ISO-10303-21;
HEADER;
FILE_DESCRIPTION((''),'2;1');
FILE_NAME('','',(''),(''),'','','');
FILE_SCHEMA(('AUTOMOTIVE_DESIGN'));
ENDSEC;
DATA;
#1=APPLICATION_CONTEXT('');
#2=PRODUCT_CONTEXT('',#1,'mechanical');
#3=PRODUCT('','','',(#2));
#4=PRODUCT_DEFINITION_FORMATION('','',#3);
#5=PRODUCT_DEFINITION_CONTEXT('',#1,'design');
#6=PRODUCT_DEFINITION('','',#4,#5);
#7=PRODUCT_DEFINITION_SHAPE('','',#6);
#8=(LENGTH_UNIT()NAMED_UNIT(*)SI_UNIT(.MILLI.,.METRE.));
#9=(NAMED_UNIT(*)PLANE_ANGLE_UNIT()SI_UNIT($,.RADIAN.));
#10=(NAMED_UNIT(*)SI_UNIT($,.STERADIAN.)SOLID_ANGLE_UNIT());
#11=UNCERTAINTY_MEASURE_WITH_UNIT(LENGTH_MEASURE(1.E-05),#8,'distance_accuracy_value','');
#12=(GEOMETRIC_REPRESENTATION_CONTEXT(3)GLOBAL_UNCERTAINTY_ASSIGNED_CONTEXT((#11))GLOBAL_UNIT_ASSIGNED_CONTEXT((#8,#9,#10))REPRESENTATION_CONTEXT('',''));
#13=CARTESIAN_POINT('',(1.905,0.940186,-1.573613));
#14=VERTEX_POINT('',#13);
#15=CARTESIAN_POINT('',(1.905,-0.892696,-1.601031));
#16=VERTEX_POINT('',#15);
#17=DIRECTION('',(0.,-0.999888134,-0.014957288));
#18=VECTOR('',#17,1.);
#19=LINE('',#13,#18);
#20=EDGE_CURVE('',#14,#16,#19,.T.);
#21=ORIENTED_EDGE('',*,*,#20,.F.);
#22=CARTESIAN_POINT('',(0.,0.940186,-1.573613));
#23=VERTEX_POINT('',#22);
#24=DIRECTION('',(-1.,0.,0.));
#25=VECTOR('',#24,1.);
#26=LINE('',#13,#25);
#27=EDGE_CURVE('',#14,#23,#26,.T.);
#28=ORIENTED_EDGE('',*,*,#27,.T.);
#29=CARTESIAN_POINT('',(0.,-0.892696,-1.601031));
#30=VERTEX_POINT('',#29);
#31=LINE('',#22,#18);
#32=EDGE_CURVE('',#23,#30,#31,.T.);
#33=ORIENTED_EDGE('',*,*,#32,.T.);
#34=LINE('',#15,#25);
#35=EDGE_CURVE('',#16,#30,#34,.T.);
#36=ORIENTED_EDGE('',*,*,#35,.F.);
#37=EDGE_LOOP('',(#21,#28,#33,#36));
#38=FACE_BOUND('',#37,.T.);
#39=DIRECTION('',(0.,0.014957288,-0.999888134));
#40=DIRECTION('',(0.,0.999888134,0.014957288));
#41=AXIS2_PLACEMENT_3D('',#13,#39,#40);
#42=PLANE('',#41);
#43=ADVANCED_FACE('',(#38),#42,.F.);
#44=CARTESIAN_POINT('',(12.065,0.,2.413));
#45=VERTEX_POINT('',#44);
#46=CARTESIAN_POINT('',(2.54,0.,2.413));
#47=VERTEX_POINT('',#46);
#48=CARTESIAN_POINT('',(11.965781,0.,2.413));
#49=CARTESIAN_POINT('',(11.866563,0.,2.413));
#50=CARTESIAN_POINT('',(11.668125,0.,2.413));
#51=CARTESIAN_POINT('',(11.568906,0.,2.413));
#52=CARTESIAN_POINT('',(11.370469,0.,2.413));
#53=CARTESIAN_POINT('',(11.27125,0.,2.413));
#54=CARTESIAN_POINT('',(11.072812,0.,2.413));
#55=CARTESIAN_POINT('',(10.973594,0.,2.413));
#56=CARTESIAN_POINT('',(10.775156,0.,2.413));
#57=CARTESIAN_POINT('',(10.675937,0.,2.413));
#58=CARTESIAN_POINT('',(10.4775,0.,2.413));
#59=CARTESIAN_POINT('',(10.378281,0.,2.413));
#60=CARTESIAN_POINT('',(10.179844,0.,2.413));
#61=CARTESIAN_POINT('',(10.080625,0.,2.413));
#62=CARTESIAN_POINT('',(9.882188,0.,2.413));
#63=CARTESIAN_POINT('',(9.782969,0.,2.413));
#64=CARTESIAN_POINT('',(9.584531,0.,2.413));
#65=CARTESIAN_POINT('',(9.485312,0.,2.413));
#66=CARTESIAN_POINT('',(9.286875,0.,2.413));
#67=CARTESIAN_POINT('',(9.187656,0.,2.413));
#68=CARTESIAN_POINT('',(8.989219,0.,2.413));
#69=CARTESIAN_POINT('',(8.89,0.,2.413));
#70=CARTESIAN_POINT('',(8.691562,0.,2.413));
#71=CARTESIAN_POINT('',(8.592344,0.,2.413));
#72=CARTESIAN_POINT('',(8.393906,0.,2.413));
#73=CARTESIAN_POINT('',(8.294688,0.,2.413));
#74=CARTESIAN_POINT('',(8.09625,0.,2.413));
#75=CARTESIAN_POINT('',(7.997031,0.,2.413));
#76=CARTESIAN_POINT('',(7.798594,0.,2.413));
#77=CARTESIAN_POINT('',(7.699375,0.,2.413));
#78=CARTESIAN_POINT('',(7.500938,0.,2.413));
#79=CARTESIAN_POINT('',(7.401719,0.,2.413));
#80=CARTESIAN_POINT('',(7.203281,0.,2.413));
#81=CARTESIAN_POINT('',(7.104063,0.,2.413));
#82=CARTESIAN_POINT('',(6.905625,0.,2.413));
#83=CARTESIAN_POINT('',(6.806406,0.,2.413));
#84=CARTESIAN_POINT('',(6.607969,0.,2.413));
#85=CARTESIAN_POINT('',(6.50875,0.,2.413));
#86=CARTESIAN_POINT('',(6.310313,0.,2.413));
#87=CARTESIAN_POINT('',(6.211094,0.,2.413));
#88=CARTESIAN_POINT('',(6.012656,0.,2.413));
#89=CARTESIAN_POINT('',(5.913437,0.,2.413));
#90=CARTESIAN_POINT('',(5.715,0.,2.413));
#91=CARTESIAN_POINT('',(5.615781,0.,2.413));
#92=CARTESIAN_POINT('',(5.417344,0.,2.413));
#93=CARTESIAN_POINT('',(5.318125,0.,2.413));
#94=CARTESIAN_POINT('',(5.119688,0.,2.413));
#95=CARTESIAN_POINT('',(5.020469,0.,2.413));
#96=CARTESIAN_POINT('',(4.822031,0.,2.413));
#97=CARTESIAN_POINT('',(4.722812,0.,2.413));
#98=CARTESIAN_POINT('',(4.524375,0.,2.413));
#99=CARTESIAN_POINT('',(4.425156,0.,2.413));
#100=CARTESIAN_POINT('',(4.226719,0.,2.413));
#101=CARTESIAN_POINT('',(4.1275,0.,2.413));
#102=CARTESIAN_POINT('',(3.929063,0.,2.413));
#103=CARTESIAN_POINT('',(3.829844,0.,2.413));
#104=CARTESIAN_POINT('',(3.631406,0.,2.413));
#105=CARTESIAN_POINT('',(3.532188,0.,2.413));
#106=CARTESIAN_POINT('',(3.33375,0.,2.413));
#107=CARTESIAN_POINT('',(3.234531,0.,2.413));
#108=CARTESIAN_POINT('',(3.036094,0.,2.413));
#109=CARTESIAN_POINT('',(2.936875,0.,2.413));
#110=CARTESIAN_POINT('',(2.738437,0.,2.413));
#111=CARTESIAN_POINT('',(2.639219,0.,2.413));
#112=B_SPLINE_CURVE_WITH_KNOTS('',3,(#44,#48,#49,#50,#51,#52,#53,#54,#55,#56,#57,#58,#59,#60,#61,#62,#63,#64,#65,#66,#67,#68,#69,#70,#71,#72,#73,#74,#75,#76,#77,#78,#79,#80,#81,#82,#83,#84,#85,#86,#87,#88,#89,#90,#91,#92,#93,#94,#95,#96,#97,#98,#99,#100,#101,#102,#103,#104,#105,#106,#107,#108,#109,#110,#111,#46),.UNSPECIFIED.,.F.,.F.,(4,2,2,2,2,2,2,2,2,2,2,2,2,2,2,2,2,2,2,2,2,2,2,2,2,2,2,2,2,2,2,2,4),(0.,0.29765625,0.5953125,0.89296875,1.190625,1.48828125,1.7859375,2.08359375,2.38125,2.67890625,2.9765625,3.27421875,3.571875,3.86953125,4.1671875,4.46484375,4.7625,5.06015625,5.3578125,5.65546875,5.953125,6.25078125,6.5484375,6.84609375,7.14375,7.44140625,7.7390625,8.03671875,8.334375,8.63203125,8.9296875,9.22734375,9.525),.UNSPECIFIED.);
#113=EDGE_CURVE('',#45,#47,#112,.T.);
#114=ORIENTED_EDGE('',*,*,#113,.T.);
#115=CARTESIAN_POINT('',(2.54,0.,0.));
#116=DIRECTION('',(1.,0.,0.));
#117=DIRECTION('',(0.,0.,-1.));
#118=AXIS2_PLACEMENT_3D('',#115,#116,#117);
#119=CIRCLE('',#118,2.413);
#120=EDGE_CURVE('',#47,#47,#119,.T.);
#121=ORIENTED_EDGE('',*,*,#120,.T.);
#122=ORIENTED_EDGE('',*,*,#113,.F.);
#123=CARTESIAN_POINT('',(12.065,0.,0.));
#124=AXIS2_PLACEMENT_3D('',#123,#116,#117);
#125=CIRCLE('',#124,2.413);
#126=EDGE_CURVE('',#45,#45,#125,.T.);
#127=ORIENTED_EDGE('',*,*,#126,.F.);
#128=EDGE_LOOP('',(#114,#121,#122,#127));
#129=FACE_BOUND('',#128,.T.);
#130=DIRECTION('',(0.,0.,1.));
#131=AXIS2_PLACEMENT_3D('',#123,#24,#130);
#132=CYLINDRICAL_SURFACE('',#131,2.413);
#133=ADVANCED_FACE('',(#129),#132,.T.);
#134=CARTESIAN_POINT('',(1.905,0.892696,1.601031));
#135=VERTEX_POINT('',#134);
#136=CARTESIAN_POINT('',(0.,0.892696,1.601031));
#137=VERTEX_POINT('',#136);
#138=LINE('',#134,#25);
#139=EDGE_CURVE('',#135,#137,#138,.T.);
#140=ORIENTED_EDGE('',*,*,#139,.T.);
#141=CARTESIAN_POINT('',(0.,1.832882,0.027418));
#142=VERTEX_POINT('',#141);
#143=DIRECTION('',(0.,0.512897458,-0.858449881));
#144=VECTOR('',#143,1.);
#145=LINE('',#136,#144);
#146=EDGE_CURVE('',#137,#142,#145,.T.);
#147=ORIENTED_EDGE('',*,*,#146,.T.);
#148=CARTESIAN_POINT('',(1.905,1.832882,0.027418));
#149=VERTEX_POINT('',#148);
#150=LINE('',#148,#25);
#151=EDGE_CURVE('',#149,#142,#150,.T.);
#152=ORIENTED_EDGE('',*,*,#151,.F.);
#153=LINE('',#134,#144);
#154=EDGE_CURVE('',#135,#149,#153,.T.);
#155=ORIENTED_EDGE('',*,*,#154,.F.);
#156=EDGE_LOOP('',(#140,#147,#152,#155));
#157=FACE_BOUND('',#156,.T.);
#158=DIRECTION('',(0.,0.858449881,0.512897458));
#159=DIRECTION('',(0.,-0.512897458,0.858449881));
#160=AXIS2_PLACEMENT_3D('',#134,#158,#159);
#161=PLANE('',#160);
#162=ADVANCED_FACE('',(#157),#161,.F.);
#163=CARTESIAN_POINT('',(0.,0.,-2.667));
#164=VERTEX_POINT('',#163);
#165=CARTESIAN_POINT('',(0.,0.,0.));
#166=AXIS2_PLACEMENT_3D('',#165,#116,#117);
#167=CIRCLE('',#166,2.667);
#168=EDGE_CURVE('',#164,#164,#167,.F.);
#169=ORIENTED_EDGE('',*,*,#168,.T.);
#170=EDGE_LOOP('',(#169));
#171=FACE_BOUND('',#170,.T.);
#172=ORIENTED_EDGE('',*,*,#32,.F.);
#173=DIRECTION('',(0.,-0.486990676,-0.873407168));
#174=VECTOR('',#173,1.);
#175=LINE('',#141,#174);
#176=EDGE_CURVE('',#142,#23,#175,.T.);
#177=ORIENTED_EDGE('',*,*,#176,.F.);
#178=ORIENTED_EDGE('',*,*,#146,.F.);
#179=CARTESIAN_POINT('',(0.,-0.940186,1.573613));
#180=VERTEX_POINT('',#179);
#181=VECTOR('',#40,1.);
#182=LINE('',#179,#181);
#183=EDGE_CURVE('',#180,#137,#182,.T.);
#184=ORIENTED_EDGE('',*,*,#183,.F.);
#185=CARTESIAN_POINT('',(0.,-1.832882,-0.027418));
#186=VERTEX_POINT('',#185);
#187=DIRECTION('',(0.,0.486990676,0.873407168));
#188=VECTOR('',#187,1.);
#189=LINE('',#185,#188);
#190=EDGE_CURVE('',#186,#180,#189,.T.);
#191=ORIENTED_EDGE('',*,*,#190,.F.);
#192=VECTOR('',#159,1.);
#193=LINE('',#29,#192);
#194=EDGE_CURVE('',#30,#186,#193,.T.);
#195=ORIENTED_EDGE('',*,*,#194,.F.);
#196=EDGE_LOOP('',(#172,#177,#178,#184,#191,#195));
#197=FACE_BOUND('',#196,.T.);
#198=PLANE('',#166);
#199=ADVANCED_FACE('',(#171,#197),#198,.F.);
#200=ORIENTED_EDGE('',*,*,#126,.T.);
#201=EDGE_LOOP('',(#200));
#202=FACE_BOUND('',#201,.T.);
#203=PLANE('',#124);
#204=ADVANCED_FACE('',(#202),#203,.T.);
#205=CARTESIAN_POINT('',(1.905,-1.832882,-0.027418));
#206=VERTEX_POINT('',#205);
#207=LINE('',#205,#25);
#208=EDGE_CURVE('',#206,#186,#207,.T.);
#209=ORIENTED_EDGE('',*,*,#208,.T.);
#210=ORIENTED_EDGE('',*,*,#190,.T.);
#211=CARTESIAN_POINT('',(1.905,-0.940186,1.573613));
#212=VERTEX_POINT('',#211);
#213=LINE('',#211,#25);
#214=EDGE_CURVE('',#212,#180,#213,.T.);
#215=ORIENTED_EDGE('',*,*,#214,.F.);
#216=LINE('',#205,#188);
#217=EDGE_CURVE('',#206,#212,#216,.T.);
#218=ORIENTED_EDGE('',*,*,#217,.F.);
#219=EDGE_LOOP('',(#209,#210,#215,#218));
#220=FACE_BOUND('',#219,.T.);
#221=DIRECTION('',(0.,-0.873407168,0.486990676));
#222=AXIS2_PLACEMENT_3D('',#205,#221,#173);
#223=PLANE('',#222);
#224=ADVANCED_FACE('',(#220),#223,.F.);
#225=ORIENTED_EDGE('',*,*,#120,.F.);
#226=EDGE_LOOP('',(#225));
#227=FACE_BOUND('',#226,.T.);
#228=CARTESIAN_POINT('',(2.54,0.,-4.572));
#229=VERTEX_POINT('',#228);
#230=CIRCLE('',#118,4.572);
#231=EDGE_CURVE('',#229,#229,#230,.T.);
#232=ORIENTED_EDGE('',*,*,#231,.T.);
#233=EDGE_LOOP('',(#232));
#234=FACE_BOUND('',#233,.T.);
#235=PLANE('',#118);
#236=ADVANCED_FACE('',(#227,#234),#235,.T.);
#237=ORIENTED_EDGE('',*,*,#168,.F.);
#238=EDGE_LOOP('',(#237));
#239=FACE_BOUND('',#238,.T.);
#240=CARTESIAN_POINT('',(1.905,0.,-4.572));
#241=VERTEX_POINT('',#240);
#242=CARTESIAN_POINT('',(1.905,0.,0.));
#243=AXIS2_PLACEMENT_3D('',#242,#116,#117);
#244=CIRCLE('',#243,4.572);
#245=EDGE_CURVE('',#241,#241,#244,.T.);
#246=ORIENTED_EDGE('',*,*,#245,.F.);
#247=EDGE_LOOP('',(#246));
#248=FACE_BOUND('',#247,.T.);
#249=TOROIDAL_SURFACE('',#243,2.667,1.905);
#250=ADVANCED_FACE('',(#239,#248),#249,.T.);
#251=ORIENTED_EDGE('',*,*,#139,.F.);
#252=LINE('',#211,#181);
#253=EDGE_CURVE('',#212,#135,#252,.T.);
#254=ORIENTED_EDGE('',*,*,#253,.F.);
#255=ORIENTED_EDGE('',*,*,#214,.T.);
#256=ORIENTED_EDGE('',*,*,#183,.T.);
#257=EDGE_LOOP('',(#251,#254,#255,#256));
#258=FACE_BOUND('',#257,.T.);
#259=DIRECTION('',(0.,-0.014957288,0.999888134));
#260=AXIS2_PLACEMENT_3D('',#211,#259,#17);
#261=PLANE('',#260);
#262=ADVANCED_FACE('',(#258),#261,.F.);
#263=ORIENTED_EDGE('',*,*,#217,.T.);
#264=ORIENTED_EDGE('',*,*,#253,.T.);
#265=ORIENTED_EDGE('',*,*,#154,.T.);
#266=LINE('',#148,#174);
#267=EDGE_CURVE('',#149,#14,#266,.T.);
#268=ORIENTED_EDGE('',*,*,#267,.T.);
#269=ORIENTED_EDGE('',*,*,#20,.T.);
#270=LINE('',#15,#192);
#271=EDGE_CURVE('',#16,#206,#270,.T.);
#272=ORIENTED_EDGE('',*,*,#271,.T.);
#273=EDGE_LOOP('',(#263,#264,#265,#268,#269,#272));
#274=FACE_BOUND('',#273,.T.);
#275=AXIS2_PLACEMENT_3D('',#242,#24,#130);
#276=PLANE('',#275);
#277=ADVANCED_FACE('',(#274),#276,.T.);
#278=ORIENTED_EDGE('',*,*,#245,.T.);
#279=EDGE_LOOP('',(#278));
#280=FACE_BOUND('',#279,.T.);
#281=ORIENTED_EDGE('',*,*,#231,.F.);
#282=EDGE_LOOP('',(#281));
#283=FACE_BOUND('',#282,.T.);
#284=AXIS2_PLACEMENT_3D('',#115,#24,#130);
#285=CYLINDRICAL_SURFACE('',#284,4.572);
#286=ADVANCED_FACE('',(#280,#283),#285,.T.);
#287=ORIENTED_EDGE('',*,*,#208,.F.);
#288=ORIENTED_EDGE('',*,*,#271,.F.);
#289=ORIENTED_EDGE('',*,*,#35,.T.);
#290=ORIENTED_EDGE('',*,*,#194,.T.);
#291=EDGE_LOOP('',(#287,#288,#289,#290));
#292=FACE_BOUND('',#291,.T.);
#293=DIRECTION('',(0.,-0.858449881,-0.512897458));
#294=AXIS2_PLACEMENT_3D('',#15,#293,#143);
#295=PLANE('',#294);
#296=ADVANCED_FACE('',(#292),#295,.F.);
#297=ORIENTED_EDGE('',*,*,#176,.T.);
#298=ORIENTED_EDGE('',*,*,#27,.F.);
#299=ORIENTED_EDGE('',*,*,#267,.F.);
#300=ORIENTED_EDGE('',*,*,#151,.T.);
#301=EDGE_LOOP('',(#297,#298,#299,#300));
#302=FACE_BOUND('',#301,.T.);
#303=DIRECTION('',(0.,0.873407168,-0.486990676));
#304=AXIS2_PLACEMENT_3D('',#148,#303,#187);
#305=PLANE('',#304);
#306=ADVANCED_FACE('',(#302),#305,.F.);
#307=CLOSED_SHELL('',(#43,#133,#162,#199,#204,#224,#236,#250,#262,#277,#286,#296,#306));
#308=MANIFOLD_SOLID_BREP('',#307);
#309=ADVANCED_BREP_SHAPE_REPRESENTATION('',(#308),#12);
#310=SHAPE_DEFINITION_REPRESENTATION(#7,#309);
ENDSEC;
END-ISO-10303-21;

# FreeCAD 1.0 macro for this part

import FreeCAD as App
import Part
import Sketcher

V = App.Vector
Q = App.Units.Quantity


def edges_at(feature, points):
    """Names of the edges that pass closest to the given points."""
    edges = feature.Shape.Edges
    near = lambda p: min(range(len(edges)), key=lambda i: edges[i].distToShape(Part.Vertex(*p))[0])
    return sorted({f"Edge{near(p) + 1}" for p in points})

doc = App.newDocument("Part")
body = doc.addObject("PartDesign::Body", "Body")

# Sketch on YZ plane
sketch1 = body.newObject("Sketcher::SketchObject", "Sketch")
sketch1.AttachmentSupport = (doc.getObject("YZ_Plane"), [""])
sketch1.MapMode = "FlatFace"
sketch1.addGeometry(Part.Circle(V(0, 0, 0), V(0, 0, 1), 4.6), False)
sketch1.addConstraint([
    Sketcher.Constraint("Coincident", 0, 3, -1, 1),
    Sketcher.Constraint("Diameter", 0, Q("0.36 in")),
])
pad1 = body.newObject("PartDesign::Pad", "Pad")
pad1.Profile = sketch1
pad1.Length = Q("0.1 in")

# Sketch on YZ plane
sketch2 = body.newObject("Sketcher::SketchObject", "Sketch001")
sketch2.AttachmentSupport = (doc.getObject("YZ_Plane"), [""])
sketch2.MapMode = "FlatFace"
sketch2.AttachmentOffset = App.Placement(V(0, 0, 0.1 * 25.4), App.Rotation())
sketch2.addGeometry(Part.Circle(V(0, 0, 0), V(0, 0, 1), 2.4), False)
sketch2.addConstraint([
    Sketcher.Constraint("Coincident", 0, 3, -1, 1),
    Sketcher.Constraint("Diameter", 0, Q("0.19 in")),
])
pad2 = body.newObject("PartDesign::Pad", "Pad001")
pad2.Profile = sketch2
pad2.Length = Q("0.375 in")
doc.recompute()

fillet = body.newObject("PartDesign::Fillet", "Fillet")
fillet.Base = (pad2, edges_at(pad2, [(0, 0, 4.572)]))
fillet.Radius = Q("0.075 in")

# Sketch on YZ plane
sketch3 = body.newObject("Sketcher::SketchObject", "Sketch002")
sketch3.AttachmentSupport = (doc.getObject("YZ_Plane"), [""])
sketch3.MapMode = "FlatFace"
sketch3.addGeometry([
    Part.LineSegment(V(-0.940186, 1.573613, 0), V(0.892696, 1.601031, 0)),  # 0
    Part.LineSegment(V(0.892696, 1.601031, 0), V(1.832882, 0.027418, 0)),  # 1
    Part.LineSegment(V(1.832882, 0.027418, 0), V(0.940186, -1.573613, 0)),  # 2
    Part.LineSegment(V(0.940186, -1.573613, 0), V(-0.892696, -1.601031, 0)),  # 3
    Part.LineSegment(V(-0.892696, -1.601031, 0), V(-1.832882, -0.027418, 0)),  # 4
    Part.LineSegment(V(-1.832882, -0.027418, 0), V(-0.940186, 1.573613, 0)),  # 5
], False)
sketch3.addConstraint([
    Sketcher.Constraint("Coincident", 0, 2, 1, 1),
    Sketcher.Constraint("Coincident", 1, 2, 2, 1),
    Sketcher.Constraint("Coincident", 2, 2, 3, 1),
    Sketcher.Constraint("Coincident", 3, 2, 4, 1),
    Sketcher.Constraint("Coincident", 4, 2, 5, 1),
    Sketcher.Constraint("Coincident", 5, 2, 0, 1),
    Sketcher.Constraint("Symmetric", 0, 2, 3, 2, -1, 1),
    Sketcher.Constraint("Symmetric", 1, 2, 4, 2, -1, 1),
    Sketcher.Constraint("Symmetric", 2, 2, 5, 2, -1, 1),
    Sketcher.Constraint("Equal", 0, 1),
    Sketcher.Constraint("Equal", 1, 2),
    Sketcher.Constraint("DistanceY", -1, 1, 0, 2, 1.601031),
    Sketcher.Constraint("DistanceY", -1, 1, 1, 2, 0.027418),
    Sketcher.Constraint("DistanceY", 2, 2, 1, 2, 1.601031),
    Sketcher.Constraint("DistanceX", 0, 2, 2, 2, 0.047489),
])
pocket1 = body.newObject("PartDesign::Pocket", "Pocket")
pocket1.Profile = sketch3
pocket1.Length = Q("0.075 in")
pocket1.Reversed = True

doc.recompute()
